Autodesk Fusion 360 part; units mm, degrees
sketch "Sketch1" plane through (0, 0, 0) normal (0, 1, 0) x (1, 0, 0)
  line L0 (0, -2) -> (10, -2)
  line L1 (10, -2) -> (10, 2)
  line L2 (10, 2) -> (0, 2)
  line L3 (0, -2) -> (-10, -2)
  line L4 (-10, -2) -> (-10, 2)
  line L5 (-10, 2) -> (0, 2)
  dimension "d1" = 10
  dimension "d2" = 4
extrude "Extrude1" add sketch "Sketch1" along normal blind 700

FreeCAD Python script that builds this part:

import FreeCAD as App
import Part
import Sketcher

V = App.Vector
Q = App.Units.Quantity


def add_polygon(sketch, points):
    """Adds a closed chain of lines whose ends are joined by coincident constraints."""
    first, n = sketch.GeometryCount, len(points)
    for a, b in zip(points, points[1:] + points[:1]):
        sketch.addGeometry(Part.LineSegment(App.Vector(*a, 0), App.Vector(*b, 0)), False)
    for i in range(n):
        sketch.addConstraint(Sketcher.Constraint("Coincident", first + i, 2, first + (i + 1) % n, 1))

doc = App.newDocument("Part")
body = doc.addObject("PartDesign::Body", "Body")

sketch1 = doc.addObject("Sketcher::SketchObject", "Sketch")
body.addObject(sketch1)
sketch1.AttachmentSupport = (doc.XZ_Plane, [""])
sketch1.MapMode = "FlatFace"
add_polygon(sketch1, [(-10, 2), (10, 2), (10, -2), (-10, -2)])
sketch1.addConstraint([
    Sketcher.Constraint("Horizontal", 0),
    Sketcher.Constraint("Vertical", 1),
    Sketcher.Constraint("Horizontal", 2),
    Sketcher.Constraint("Vertical", 3),
    Sketcher.Constraint("Symmetric", 0, 2, 2, 2, -1, 1),
    Sketcher.Constraint("DistanceY", 1, 2, 1, 1, Q("4 mm")),
    Sketcher.Constraint("DistanceX", -1, 1, 0, 2, Q("10 mm")),
])
pad1 = doc.addObject("PartDesign::Pad", "Pad")
body.addObject(pad1)
pad1.Profile = sketch1
pad1.Length = 700
pad1.Reversed = True

doc.recompute()
